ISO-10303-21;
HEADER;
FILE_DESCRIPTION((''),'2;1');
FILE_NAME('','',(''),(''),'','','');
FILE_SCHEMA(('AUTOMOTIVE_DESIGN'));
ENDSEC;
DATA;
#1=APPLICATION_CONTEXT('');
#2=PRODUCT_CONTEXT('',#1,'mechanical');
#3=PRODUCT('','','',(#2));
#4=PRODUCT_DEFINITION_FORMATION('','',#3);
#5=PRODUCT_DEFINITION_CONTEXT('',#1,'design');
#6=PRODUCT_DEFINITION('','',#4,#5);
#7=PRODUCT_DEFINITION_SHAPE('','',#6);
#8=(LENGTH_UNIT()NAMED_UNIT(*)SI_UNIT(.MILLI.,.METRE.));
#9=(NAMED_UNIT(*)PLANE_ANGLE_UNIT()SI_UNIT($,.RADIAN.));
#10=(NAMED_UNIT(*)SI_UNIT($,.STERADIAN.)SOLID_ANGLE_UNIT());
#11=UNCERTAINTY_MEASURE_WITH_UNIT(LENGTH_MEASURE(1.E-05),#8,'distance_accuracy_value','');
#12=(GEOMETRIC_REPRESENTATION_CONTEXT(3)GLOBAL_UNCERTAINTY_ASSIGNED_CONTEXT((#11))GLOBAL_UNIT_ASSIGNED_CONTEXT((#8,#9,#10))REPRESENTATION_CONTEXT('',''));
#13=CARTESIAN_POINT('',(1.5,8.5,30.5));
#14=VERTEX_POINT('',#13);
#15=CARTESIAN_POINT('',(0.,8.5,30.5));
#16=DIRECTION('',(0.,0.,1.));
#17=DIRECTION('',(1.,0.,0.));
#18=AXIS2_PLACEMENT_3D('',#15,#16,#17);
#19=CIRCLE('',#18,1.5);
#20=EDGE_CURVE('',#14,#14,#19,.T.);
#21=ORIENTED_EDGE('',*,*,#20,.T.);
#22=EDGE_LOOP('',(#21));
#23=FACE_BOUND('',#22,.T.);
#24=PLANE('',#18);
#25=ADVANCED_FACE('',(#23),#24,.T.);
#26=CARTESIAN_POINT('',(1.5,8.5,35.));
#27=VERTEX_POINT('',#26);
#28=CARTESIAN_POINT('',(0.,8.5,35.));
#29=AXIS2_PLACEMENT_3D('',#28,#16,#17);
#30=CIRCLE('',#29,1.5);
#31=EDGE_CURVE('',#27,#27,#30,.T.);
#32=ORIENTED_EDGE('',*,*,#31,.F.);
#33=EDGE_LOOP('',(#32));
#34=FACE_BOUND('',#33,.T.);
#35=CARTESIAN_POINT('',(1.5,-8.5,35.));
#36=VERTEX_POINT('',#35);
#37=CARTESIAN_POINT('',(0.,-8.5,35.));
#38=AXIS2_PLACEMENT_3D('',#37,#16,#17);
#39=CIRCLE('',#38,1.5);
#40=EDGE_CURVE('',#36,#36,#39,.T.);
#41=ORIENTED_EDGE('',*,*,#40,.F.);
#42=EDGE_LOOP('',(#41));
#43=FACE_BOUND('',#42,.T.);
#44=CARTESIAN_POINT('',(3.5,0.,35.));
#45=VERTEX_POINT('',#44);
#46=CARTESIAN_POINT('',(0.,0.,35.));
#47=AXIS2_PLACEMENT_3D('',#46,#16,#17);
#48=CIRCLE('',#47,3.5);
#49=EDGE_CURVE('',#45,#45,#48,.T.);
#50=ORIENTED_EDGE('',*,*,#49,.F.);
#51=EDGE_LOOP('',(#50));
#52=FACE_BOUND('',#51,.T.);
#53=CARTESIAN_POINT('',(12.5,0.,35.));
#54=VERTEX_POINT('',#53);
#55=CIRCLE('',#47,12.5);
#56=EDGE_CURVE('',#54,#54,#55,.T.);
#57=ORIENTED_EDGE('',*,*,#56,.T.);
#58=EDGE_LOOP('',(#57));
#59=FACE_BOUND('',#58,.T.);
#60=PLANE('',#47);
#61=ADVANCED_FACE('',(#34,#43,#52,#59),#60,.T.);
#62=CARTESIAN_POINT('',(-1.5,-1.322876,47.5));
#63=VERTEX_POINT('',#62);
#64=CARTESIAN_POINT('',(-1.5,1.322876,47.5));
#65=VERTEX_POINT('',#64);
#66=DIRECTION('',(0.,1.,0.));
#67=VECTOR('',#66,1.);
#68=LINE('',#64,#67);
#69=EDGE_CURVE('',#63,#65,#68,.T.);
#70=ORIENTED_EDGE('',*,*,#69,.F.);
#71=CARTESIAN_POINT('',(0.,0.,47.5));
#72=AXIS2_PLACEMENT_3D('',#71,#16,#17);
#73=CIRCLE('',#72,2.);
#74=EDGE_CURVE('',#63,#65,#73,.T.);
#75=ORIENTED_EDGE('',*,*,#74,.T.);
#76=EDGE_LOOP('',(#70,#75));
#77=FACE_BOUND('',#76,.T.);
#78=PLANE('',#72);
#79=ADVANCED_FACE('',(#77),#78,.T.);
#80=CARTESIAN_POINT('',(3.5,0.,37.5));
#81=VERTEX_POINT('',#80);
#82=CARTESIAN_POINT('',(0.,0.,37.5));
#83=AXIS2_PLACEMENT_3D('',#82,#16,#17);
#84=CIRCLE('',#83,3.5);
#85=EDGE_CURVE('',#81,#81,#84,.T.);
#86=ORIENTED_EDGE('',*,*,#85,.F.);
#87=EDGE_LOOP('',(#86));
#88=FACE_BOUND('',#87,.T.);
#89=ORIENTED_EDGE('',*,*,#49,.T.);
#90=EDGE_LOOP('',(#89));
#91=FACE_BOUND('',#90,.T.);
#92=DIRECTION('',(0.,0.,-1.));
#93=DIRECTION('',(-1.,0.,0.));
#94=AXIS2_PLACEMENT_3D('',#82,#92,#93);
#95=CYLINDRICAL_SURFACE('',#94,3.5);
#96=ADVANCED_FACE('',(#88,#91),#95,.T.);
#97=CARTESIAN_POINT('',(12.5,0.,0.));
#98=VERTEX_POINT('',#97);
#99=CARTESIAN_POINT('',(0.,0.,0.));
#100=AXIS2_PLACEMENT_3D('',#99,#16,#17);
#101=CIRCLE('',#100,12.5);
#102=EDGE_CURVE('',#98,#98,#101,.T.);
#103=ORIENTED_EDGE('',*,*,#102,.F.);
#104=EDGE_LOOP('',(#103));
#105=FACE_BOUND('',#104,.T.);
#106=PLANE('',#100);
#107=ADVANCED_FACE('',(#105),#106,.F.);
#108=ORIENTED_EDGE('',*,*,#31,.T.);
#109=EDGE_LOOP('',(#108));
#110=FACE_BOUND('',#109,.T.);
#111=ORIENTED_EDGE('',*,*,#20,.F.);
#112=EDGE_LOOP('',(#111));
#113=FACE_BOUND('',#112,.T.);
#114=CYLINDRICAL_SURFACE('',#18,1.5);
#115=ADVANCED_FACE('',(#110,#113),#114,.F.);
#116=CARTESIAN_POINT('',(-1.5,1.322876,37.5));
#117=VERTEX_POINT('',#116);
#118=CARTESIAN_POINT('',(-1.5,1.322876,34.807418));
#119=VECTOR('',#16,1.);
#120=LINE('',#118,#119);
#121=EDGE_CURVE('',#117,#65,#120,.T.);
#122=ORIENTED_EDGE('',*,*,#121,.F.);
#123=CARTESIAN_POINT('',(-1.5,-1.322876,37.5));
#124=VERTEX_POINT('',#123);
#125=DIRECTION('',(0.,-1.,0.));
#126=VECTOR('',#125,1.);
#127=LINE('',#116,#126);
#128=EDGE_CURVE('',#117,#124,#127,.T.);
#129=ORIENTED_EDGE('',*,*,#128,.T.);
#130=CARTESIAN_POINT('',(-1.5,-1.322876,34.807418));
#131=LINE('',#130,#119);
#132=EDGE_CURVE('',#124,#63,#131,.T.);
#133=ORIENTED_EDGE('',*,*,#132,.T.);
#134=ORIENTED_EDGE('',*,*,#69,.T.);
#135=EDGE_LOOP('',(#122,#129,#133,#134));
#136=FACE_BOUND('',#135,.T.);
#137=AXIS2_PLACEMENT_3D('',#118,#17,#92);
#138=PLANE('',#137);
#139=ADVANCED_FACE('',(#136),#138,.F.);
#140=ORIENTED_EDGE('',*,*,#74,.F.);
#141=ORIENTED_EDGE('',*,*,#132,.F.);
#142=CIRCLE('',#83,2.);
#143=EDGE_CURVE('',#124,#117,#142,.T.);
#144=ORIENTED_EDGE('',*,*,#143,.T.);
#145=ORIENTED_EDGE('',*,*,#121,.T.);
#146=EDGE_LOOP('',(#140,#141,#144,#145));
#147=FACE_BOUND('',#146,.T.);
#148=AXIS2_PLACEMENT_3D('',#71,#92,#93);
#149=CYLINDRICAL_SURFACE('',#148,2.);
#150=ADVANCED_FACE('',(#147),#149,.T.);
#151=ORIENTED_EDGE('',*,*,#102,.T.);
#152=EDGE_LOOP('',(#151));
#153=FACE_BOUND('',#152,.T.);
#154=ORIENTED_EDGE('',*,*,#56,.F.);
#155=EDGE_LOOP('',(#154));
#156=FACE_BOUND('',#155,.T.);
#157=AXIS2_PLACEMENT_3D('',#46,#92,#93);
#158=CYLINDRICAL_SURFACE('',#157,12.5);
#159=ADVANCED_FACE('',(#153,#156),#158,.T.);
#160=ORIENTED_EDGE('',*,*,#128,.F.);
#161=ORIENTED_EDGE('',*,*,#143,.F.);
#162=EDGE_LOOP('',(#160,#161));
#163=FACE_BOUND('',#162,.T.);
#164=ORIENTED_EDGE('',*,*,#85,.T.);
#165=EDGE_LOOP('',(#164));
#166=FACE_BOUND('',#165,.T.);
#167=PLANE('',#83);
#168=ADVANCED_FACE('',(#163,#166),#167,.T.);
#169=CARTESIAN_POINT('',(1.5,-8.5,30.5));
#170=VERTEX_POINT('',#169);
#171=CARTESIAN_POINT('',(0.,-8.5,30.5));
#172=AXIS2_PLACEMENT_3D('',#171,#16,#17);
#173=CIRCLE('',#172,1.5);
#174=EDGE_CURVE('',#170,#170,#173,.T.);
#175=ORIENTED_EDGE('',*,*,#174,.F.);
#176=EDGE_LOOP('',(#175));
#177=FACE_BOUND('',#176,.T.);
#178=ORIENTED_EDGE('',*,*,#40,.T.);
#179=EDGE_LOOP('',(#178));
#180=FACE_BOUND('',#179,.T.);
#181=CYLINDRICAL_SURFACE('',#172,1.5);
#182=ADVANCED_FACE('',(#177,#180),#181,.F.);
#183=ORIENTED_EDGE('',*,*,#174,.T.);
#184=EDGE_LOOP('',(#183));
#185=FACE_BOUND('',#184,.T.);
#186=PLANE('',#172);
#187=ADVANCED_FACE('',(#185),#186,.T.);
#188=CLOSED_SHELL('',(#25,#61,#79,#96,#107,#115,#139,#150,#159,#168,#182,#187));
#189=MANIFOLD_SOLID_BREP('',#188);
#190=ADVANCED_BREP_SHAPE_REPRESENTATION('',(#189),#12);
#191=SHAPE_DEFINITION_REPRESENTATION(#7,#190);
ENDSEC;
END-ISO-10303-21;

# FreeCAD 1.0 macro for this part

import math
import FreeCAD as App
import Part
import Sketcher
from FreeCAD import Vector

doc = App.newDocument("Part")
params = doc.addObject("Spreadsheet::Sheet", "Params")
for row, (alias, value) in enumerate([
    ("sketch1_diameter", "25 mm"),
    ("pad1_length", "35 mm"),
    ("sketch2_diameter", "7 mm"),
    ("pad2_length", "2.5 mm"),
    ("sketch3_diameter", "4 mm"),
    ("pad3_length", "10 mm"),
    ("sketch4_radius", "2 mm"),
    ("pocket1_length", "10 mm"),
    ("sketch5_diameter", "3 mm"),
    ("pocket2_length", "4.5 mm"),
], start=1):
    params.set(f"A{row}", alias)
    params.set(f"B{row}", "=" + value)
    params.setAlias(f"B{row}", alias)

body = doc.addObject("PartDesign::Body", "Body")

sketch1 = doc.addObject("Sketcher::SketchObject", "Sketch")
body.addObject(sketch1)
sketch1.AttachmentSupport = (doc.XY_Plane, [""])
sketch1.MapMode = "FlatFace"
sketch1.addGeometry(Part.Circle(Vector(0, 0, 0), Vector(0, 0, 1), 12), False)
sketch1.addConstraint([
    Sketcher.Constraint("Coincident", 0, 3, -1, 1),
    Sketcher.Constraint("Diameter", 0, 25.0),
])
sketch1.setExpression("Constraints[1]", "Params.sketch1_diameter")
pad1 = doc.addObject("PartDesign::Pad", "Pad")
body.addObject(pad1)
pad1.Profile = sketch1
pad1.setExpression("Length", "Params.pad1_length")

sketch2 = doc.addObject("Sketcher::SketchObject", "Sketch001")
body.addObject(sketch2)
sketch2.AttachmentSupport = (doc.XY_Plane, [""])
sketch2.MapMode = "FlatFace"
sketch2.AttachmentOffset = App.Placement(Vector(0, 0, 35), App.Rotation())
sketch2.addGeometry(Part.Circle(Vector(0, 0, 0), Vector(0, 0, 1), 3.5), False)
sketch2.addConstraint([
    Sketcher.Constraint("Coincident", 0, 3, -1, 1),
    Sketcher.Constraint("Diameter", 0, 7.0),
])
sketch2.setExpression("Constraints[1]", "Params.sketch2_diameter")
pad2 = doc.addObject("PartDesign::Pad", "Pad001")
body.addObject(pad2)
pad2.Profile = sketch2
pad2.setExpression("Length", "Params.pad2_length")

sketch3 = doc.addObject("Sketcher::SketchObject", "Sketch002")
body.addObject(sketch3)
sketch3.AttachmentSupport = (doc.XY_Plane, [""])
sketch3.MapMode = "FlatFace"
sketch3.AttachmentOffset = App.Placement(Vector(0, 0, 37.5), App.Rotation())
sketch3.addGeometry(Part.Circle(Vector(0, 0, 0), Vector(0, 0, 1), 2), False)
sketch3.addConstraint([
    Sketcher.Constraint("Coincident", 0, 3, -1, 1),
    Sketcher.Constraint("Diameter", 0, 4.0),
])
sketch3.setExpression("Constraints[1]", "Params.sketch3_diameter")
pad3 = doc.addObject("PartDesign::Pad", "Pad002")
body.addObject(pad3)
pad3.Profile = sketch3
pad3.setExpression("Length", "Params.pad3_length")

sketch4 = doc.addObject("Sketcher::SketchObject", "Sketch003")
body.addObject(sketch4)
sketch4.AttachmentSupport = (doc.XY_Plane, [""])
sketch4.MapMode = "FlatFace"
sketch4.AttachmentOffset = App.Placement(Vector(0, 0, 37.5), App.Rotation())
sketch4.addGeometry([
    Part.LineSegment(Vector(-1.5, -1.3, 0), Vector(-1.5, 1.3, 0)),
    Part.ArcOfCircle(Part.Circle(Vector(0, 0, 0), Vector(0, 0, 1), 2), math.radians(139), math.radians(221)),
], False)
sketch4.addConstraint([
    Sketcher.Constraint("Coincident", 0, 1, 1, 2),
    Sketcher.Constraint("Coincident", 1, 1, 0, 2),
    Sketcher.Constraint("Vertical", 0),
    Sketcher.Constraint("Coincident", 1, 3, -1, 1),
    Sketcher.Constraint("Radius", 1, 2.0),
    Sketcher.Constraint("DistanceX", 0, 1, -1, 1, 1.5),
])
sketch4.setExpression("Constraints[4]", "Params.sketch4_radius")
pocket1 = doc.addObject("PartDesign::Pocket", "Pocket")
body.addObject(pocket1)
pocket1.Profile = sketch4
pocket1.setExpression("Length", "Params.pocket1_length")
pocket1.Reversed = True

sketch5 = doc.addObject("Sketcher::SketchObject", "Sketch004")
body.addObject(sketch5)
sketch5.AttachmentSupport = (doc.XY_Plane, [""])
sketch5.MapMode = "FlatFace"
sketch5.AttachmentOffset = App.Placement(Vector(0, 0, 35), App.Rotation())
sketch5.addGeometry([
    Part.Circle(Vector(0, 8.5, 0), Vector(0, 0, 1), 1.5),
    Part.Circle(Vector(0, -8.5, 0), Vector(0, 0, 1), 1.5),
], False)
sketch5.addConstraint([
    Sketcher.Constraint("Equal", 0, 1),
    Sketcher.Constraint("Symmetric", 0, 3, 1, 3, -1, 1),
    Sketcher.Constraint("PointOnObject", 0, 3, -2),
    Sketcher.Constraint("Diameter", 0, 3.0),
    Sketcher.Constraint("DistanceY", 1, 3, 0, 3, 17.0),
])
sketch5.setExpression("Constraints[3]", "Params.sketch5_diameter")
pocket2 = doc.addObject("PartDesign::Pocket", "Pocket001")
body.addObject(pocket2)
pocket2.Profile = sketch5
pocket2.setExpression("Length", "Params.pocket2_length")

doc.recompute()
